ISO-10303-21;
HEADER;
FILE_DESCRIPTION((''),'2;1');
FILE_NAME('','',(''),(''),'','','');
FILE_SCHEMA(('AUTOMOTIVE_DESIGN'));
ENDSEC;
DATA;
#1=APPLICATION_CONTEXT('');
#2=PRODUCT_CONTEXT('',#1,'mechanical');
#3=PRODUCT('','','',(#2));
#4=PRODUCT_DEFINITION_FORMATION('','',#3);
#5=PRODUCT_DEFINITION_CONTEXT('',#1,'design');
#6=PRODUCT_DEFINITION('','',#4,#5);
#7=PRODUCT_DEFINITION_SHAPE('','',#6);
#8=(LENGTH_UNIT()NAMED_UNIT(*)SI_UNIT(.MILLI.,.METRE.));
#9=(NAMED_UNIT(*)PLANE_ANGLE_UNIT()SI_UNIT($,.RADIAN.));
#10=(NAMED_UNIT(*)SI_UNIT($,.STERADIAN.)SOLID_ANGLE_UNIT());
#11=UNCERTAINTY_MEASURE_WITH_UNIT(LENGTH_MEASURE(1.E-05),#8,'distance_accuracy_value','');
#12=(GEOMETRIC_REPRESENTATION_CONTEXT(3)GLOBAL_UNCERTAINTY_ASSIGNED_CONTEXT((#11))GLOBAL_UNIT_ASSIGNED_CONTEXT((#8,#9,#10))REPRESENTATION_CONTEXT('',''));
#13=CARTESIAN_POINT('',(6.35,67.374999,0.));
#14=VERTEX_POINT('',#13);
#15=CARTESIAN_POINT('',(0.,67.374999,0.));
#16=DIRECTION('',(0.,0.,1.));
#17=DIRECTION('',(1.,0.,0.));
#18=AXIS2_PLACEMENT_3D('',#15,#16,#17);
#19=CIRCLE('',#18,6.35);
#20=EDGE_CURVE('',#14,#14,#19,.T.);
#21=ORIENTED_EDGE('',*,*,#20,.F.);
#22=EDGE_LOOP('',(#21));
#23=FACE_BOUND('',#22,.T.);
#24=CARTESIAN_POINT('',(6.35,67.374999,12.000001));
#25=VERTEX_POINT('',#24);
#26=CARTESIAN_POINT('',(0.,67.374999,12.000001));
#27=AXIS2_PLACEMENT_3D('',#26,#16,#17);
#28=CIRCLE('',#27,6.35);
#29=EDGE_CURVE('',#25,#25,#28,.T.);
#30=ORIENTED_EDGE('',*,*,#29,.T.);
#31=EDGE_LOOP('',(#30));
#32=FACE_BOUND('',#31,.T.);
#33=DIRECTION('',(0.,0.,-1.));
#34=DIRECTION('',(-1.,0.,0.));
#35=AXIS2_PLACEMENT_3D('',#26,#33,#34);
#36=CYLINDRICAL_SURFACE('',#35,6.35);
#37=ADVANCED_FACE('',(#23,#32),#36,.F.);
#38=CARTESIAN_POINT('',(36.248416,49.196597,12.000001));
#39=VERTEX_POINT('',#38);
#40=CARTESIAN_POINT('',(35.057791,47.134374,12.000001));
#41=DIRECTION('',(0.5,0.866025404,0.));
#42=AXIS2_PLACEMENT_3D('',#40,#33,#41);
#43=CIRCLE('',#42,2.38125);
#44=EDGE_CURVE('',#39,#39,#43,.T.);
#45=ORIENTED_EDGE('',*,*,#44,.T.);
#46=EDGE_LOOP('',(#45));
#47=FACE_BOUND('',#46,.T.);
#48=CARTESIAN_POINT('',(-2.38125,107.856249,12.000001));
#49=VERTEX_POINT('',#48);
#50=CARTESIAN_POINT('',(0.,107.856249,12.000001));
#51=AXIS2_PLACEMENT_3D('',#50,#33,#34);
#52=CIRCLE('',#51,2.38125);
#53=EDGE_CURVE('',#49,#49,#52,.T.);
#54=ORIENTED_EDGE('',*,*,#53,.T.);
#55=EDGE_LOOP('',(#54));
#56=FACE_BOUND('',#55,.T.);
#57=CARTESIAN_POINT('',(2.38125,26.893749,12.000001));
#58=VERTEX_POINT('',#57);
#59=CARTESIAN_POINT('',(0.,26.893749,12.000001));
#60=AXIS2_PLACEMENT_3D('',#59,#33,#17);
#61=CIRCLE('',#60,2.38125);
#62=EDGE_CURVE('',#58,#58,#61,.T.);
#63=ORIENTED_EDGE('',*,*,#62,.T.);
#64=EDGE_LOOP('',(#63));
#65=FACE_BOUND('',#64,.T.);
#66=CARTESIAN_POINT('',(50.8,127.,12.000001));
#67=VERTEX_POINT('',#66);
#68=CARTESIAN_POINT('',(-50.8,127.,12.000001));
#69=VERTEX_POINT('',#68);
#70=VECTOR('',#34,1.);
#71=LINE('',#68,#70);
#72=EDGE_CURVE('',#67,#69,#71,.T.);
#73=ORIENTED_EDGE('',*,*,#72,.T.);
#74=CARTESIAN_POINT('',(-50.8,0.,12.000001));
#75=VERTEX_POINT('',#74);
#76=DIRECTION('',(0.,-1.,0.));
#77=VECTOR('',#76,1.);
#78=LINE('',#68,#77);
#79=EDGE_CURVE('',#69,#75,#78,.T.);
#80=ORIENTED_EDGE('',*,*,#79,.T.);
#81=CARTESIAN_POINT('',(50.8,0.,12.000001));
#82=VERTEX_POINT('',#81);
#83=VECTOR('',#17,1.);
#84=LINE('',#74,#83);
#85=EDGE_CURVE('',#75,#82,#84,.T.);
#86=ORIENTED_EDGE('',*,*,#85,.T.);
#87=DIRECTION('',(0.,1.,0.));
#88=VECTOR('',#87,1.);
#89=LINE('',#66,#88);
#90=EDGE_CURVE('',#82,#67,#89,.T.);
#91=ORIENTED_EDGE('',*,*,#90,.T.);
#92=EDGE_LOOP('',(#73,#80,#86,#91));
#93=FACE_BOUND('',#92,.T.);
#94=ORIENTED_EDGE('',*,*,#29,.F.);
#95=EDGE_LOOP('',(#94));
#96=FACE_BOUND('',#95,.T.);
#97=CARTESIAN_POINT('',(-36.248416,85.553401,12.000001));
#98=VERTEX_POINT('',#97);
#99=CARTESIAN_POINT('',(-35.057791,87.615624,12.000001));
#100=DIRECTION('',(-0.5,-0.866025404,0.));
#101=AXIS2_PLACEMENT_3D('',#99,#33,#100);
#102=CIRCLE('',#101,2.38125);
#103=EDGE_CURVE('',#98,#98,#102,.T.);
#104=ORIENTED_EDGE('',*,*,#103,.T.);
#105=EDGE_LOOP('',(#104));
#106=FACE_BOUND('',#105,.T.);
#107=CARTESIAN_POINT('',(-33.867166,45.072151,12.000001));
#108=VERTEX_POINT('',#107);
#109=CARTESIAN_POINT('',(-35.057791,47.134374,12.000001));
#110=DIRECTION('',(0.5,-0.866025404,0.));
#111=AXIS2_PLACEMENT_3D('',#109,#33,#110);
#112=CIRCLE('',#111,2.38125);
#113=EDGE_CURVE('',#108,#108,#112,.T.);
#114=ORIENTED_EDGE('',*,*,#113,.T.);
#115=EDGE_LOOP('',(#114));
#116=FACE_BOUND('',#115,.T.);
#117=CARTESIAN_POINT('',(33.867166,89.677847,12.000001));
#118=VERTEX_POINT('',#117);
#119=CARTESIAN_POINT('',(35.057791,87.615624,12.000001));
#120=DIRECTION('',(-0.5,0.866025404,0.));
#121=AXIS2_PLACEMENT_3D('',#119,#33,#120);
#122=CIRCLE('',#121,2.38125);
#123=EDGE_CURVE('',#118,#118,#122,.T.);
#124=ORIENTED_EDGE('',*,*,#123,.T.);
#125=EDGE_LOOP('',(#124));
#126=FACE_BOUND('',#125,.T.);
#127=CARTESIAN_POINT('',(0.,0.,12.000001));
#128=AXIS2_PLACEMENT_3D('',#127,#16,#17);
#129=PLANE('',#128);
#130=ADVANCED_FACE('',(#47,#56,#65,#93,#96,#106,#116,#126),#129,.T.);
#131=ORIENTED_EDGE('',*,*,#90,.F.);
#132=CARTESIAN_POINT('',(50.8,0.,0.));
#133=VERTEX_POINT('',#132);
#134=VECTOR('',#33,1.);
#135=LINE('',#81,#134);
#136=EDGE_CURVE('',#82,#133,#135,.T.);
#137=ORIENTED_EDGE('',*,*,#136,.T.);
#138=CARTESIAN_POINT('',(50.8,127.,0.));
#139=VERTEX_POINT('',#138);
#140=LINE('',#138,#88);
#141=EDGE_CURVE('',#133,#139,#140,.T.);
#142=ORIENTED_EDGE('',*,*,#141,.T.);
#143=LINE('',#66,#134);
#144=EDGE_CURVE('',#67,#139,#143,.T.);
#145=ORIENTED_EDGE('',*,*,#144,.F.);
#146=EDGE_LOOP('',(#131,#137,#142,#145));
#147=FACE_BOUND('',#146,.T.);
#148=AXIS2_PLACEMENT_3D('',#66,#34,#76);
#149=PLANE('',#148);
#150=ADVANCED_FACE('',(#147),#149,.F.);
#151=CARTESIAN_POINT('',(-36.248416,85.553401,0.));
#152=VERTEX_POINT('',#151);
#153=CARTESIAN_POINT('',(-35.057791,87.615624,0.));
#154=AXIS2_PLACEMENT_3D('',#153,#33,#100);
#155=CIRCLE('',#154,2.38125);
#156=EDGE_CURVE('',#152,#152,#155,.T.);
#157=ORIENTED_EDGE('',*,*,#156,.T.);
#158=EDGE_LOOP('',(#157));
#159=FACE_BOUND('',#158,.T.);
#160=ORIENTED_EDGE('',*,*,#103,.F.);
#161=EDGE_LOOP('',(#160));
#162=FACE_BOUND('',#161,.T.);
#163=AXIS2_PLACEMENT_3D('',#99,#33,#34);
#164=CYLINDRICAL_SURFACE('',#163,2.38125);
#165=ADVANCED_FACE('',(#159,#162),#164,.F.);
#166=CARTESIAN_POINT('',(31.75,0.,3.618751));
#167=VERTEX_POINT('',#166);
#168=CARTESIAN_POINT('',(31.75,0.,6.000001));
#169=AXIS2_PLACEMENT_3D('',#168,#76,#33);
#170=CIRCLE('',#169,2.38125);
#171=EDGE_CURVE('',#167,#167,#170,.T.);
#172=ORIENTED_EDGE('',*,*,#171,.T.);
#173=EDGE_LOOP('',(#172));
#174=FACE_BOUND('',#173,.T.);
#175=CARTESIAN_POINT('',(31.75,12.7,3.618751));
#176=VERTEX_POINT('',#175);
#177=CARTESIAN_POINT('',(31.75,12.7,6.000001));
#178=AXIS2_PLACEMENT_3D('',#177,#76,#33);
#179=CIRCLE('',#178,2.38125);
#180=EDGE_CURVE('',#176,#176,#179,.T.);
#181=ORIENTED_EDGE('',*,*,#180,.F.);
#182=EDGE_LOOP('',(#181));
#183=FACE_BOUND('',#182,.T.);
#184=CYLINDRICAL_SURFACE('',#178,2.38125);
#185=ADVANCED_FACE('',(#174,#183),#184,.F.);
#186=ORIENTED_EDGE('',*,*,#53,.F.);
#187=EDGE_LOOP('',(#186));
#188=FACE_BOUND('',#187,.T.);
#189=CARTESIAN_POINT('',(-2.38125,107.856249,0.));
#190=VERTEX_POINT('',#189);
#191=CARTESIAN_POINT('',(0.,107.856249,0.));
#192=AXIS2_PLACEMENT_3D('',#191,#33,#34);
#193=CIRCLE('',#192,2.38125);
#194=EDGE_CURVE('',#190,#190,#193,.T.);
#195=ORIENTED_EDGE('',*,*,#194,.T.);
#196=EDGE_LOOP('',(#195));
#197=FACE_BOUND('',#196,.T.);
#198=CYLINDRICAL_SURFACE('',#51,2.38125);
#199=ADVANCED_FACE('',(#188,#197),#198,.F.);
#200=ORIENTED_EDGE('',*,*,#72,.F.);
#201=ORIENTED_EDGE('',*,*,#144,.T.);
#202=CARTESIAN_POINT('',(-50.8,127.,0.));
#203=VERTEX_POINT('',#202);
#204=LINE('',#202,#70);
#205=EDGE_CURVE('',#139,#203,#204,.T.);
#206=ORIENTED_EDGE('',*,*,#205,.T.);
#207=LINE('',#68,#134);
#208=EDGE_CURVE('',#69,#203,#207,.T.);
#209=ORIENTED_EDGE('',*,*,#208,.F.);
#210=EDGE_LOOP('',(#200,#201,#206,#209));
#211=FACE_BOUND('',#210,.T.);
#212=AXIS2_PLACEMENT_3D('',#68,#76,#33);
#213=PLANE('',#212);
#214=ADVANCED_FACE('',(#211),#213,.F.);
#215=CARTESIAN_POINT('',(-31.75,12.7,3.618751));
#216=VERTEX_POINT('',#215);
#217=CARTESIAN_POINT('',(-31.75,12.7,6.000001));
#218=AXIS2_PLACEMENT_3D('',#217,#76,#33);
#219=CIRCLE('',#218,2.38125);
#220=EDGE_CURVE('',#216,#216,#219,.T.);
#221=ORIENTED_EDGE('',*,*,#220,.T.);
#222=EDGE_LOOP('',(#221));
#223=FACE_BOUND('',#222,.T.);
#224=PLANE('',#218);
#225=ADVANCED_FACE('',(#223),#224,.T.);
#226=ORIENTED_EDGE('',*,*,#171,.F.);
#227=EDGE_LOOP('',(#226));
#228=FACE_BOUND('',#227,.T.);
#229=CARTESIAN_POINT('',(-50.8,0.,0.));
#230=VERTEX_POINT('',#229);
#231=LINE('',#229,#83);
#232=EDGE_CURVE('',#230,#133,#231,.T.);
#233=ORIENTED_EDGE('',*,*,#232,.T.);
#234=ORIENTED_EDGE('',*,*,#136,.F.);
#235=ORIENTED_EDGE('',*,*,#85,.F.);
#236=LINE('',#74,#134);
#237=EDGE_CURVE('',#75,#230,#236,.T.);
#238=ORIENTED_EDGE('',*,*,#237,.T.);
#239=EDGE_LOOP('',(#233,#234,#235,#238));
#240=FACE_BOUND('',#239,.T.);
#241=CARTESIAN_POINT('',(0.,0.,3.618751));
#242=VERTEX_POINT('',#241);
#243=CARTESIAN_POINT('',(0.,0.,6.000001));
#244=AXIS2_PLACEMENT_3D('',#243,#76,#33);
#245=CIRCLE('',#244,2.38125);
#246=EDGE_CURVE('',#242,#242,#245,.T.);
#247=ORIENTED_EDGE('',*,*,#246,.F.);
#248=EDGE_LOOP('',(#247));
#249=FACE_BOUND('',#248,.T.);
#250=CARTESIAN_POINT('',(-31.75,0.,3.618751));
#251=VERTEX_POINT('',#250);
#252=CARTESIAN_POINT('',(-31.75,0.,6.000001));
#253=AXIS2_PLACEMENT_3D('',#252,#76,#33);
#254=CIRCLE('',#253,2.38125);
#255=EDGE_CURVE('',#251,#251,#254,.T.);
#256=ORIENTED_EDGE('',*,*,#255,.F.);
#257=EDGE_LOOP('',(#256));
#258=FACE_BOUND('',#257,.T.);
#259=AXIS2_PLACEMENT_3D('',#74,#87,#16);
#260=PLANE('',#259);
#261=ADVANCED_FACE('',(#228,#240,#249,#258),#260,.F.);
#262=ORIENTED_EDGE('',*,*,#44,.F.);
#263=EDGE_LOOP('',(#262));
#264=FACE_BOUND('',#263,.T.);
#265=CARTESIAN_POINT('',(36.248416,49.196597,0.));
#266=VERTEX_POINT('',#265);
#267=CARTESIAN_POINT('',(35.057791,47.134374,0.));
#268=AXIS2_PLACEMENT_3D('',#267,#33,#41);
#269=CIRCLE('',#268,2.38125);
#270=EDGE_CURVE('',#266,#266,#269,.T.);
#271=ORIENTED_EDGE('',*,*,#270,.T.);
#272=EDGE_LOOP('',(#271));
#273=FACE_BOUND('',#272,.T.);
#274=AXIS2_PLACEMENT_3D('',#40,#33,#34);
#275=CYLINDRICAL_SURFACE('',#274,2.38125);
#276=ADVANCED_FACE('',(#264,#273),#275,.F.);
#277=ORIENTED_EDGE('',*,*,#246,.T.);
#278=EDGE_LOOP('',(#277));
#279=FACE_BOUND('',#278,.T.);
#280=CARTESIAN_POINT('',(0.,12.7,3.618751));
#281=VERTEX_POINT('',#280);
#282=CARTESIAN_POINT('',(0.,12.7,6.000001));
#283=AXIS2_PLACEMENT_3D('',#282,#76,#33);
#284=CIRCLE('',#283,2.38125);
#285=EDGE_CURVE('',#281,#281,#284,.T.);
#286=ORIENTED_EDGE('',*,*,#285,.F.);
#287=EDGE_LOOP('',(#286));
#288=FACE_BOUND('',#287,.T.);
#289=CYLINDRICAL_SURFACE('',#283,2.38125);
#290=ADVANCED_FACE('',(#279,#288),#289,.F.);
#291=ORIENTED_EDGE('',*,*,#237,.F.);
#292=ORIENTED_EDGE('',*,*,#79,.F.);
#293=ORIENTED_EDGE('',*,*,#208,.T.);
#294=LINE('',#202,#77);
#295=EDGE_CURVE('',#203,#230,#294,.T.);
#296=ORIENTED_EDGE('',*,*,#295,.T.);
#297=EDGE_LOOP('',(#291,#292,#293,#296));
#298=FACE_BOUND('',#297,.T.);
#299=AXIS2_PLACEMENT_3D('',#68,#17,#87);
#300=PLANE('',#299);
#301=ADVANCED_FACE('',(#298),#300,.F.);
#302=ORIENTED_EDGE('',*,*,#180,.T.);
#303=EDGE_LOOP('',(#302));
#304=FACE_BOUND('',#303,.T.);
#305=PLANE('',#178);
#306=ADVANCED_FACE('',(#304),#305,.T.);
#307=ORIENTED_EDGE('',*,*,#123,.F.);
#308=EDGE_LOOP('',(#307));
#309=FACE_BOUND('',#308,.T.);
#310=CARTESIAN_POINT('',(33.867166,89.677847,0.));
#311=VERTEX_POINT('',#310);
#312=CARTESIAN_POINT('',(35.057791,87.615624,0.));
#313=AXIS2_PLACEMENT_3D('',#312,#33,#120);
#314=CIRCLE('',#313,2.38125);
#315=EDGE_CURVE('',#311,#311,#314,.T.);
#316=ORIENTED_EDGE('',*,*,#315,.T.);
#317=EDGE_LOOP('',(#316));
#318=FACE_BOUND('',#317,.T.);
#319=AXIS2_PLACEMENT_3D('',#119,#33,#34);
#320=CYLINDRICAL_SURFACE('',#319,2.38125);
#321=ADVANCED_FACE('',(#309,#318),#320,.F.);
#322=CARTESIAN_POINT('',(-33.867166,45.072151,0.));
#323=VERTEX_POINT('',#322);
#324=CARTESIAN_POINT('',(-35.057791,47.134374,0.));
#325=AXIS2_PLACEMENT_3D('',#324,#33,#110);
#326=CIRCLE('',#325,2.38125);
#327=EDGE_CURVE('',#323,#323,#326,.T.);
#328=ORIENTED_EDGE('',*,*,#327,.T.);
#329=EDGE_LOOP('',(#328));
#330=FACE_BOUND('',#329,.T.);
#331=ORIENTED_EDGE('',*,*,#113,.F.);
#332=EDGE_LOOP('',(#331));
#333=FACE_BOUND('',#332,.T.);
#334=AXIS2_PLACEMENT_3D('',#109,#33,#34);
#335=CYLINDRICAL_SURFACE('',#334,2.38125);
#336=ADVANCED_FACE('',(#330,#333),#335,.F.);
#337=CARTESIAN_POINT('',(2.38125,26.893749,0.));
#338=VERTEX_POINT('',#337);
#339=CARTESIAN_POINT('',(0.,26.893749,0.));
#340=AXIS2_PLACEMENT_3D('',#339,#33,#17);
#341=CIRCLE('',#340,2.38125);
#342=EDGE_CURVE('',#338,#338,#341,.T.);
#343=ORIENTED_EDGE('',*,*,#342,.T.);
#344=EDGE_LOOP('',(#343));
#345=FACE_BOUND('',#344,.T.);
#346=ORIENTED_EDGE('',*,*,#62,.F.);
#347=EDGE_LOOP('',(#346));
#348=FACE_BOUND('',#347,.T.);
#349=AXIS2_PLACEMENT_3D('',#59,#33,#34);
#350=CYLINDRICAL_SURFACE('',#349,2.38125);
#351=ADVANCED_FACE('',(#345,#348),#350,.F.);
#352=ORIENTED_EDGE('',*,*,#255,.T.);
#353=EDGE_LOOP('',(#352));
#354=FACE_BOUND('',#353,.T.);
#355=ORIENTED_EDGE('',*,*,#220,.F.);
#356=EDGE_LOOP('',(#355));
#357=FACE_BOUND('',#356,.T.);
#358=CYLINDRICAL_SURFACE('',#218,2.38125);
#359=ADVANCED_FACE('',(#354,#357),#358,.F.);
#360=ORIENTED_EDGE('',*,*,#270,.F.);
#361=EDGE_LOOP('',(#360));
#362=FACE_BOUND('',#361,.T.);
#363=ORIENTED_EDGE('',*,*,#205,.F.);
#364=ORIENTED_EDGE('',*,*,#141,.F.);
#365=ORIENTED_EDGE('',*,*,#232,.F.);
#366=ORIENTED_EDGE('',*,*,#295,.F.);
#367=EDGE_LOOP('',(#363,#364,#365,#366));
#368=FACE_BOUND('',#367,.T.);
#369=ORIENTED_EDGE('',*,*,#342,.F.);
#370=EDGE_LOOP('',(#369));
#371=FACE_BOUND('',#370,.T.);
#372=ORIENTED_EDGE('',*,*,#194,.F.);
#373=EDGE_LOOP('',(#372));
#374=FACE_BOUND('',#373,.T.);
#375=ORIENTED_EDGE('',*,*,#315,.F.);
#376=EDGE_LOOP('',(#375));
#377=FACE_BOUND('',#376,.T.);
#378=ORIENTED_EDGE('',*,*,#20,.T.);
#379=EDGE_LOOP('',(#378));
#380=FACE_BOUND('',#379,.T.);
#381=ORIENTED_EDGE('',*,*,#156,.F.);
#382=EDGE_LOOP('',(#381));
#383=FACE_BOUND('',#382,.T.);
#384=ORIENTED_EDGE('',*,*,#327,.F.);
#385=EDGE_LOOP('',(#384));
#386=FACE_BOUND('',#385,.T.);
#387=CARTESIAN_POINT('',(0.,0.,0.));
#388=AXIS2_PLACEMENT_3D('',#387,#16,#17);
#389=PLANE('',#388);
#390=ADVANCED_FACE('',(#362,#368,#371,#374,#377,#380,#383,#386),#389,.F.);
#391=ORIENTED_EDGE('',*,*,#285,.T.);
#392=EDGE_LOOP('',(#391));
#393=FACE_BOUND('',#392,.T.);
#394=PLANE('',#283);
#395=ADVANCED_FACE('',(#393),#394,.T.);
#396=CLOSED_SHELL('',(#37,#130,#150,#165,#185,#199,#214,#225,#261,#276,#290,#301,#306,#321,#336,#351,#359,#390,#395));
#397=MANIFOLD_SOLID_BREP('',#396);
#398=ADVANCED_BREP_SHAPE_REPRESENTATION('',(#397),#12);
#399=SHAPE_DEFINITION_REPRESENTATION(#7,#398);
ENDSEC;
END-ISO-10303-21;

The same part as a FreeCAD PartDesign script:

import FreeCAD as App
import Part
import Sketcher
Q = App.Units.Quantity


def add_polygon(sketch, points):
    """Adds a closed chain of lines whose ends are joined by coincident constraints."""
    first, n = sketch.GeometryCount, len(points)
    for a, b in zip(points, points[1:] + points[:1]):
        sketch.addGeometry(Part.LineSegment(App.Vector(*a, 0), App.Vector(*b, 0)), False)
    for i in range(n):
        sketch.addConstraint(Sketcher.Constraint("Coincident", first + i, 2, first + (i + 1) % n, 1))

doc = App.newDocument("Part")
body = doc.addObject("PartDesign::Body", "Body")

# Sketch on XY plane
sketch1 = body.newObject("Sketcher::SketchObject", "Sketch")
sketch1.AttachmentSupport = (doc.getObject("XY_Plane"), [""])
sketch1.MapMode = "FlatFace"
add_polygon(sketch1, [(-51, 127), (-51, 0), (51, 0), (51, 127)])  # lines 0-3
sketch1.addGeometry(Part.Circle(App.Vector(0, 67, 0), App.Vector(0, 0, 1), 6), False)  # 4
sketch1.addConstraint(Sketcher.Constraint("Vertical", 0))
sketch1.addConstraint(Sketcher.Constraint("Horizontal", 1))
sketch1.addConstraint(Sketcher.Constraint("Vertical", 2))
sketch1.addConstraint(Sketcher.Constraint("Horizontal", 3))
sketch1.addConstraint(Sketcher.Constraint("Symmetric", 0, 2, 1, 2, -1, 1))
sketch1.addConstraint(Sketcher.Constraint("PointOnObject", 4, 3, -2))
sketch1.addConstraint(Sketcher.Constraint("Diameter", 4, Q("0.5 in")))
sketch1.addConstraint(Sketcher.Constraint("DistanceX", 1, 1, 1, 2, Q("4 in")))
sketch1.addConstraint(Sketcher.Constraint("DistanceY", 0, 2, 0, 1, Q("5 in")))
sketch1.addConstraint(Sketcher.Constraint("DistanceY", -1, 1, 4, 3, 67.374999))
pad1 = body.newObject("PartDesign::Pad", "Pad")
pad1.Profile = sketch1
pad1.Length = 12.000001

# Sketch on XY plane
sketch2 = body.newObject("Sketcher::SketchObject", "Sketch001")
sketch2.AttachmentSupport = (doc.getObject("XY_Plane"), [""])
sketch2.MapMode = "FlatFace"
sketch2.addGeometry(Part.Circle(App.Vector(0, 107.9, 0), App.Vector(0, 0, 1), 2.4), False)
sketch2.addConstraint(Sketcher.Constraint("PointOnObject", 0, 3, -2))
sketch2.addConstraint(Sketcher.Constraint("Diameter", 0, Q("0.1875 in")))
sketch2.addConstraint(Sketcher.Constraint("DistanceY", -1, 1, 0, 3, 107.856249))
pocket1 = body.newObject("PartDesign::Pocket", "Pocket")
pocket1.Profile = sketch2
pocket1.Type = "ThroughAll"
pocket1.Reversed = True
doc.recompute()

datumline = body.newObject("PartDesign::Line", "DatumLine")
datumline.Placement = App.Placement(App.Vector(0, 67.374999, 0), App.Rotation(App.Vector(0, 0, 1), App.Vector(0, 0, 1)))
polarpattern = body.newObject("PartDesign::PolarPattern", "PolarPattern")
polarpattern.Originals = [pocket1]
polarpattern.Axis = (datumline, [""])
polarpattern.Angle = 360
polarpattern.Occurrences = 6
body.Tip = polarpattern

# Sketch on XZ plane
sketch3 = body.newObject("Sketcher::SketchObject", "Sketch002")
sketch3.AttachmentSupport = (doc.getObject("XZ_Plane"), [""])
sketch3.MapMode = "FlatFace"
sketch3.addGeometry(Part.Circle(App.Vector(31.8, 6, 0), App.Vector(0, 0, 1), 2.4), False)
sketch3.addGeometry(Part.Circle(App.Vector(0, 6, 0), App.Vector(0, 0, 1), 2.4), False)
sketch3.addGeometry(Part.Circle(App.Vector(-31.8, 6, 0), App.Vector(0, 0, 1), 2.4), False)
sketch3.addConstraint(Sketcher.Constraint("Equal", 0, 1))
sketch3.addConstraint(Sketcher.Constraint("Equal", 1, 2))
sketch3.addConstraint(Sketcher.Constraint("Symmetric", 0, 3, 2, 3, -2))
sketch3.addConstraint(Sketcher.Constraint("PointOnObject", 1, 3, -2))
sketch3.addConstraint(Sketcher.Constraint("Horizontal", 0, 3, 1, 3))
sketch3.addConstraint(Sketcher.Constraint("Diameter", 0, Q("0.1875 in")))
sketch3.addConstraint(Sketcher.Constraint("DistanceX", 2, 3, 0, 3, Q("2.5 in")))
sketch3.addConstraint(Sketcher.Constraint("DistanceY", -1, 1, 0, 3, 6.000001))
pocket2 = body.newObject("PartDesign::Pocket", "Pocket001")
pocket2.Profile = sketch3
pocket2.Length = Q("0.5 in")

doc.recompute()
